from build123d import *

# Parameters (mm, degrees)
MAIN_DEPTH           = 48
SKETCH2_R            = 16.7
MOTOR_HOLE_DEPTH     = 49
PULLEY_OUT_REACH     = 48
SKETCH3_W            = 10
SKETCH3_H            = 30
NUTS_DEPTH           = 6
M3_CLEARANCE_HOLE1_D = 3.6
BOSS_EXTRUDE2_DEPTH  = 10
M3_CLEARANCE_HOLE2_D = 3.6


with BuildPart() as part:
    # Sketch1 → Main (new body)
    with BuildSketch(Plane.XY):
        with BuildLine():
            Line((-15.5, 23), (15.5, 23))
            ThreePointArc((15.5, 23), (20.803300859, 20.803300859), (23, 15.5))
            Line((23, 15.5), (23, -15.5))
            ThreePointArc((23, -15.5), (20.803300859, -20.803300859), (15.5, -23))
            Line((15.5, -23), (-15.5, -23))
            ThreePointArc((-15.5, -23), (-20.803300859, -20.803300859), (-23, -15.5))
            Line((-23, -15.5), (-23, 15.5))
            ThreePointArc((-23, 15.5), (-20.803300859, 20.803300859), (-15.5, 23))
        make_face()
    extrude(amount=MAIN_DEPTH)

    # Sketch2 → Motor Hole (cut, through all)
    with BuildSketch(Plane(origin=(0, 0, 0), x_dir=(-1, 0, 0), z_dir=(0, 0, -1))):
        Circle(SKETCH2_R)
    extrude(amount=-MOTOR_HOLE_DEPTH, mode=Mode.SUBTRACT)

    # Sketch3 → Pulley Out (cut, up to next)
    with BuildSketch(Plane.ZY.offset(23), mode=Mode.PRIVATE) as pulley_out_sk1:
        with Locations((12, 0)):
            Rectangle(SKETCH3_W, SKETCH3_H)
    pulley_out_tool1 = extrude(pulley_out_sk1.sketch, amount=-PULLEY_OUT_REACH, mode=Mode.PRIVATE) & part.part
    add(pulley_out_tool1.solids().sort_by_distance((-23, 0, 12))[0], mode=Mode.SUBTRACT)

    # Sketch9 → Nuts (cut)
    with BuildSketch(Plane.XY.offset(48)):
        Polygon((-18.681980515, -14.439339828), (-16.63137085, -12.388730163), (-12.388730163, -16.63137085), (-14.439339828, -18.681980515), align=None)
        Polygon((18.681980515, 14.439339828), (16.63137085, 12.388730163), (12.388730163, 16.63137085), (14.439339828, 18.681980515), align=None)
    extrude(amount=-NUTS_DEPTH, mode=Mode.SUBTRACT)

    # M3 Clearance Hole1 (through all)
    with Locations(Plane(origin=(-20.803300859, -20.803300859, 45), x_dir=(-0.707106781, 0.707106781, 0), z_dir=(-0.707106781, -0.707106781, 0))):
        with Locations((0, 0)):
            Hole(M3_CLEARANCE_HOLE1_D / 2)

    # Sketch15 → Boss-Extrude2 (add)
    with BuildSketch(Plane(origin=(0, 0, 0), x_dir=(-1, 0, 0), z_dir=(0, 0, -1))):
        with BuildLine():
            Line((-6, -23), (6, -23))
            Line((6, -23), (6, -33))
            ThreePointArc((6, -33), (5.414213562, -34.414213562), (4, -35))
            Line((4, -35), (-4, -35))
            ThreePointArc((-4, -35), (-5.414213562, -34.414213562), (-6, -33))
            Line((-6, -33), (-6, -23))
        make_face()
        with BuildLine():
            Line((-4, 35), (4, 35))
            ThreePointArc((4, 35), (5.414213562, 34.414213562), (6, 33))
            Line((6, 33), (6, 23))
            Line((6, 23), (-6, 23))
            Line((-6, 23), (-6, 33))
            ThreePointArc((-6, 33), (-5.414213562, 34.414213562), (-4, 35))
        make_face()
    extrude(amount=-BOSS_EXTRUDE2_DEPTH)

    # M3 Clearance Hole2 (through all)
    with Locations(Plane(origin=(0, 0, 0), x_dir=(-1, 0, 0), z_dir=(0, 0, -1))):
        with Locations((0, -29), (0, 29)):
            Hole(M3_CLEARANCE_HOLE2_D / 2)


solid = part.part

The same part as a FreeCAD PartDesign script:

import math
import FreeCAD as App
import Part
import Sketcher
from FreeCAD import Vector
Q = App.Units.Quantity

doc = App.newDocument("Part")
params = doc.addObject("Spreadsheet::Sheet", "Params")
for row, (alias, value) in enumerate([
    ("sketch1_radius", "7.5 mm"),
    ("sketch1_width", "31 mm"),
    ("pad1_length", "48 mm"),
    ("sketch2_diameter", "33.4 mm"),
    ("sketch3_width", "30 mm"),
    ("sketch3_height", "10 mm"),
    ("sketch4_length", "6 mm"),
    ("sketch4_length2", "2.9 mm"),
    ("pocket3_length", "6 mm"),
    ("sketch5_diameter", "3.6 mm"),
    ("hole_diameter", "3.6 mm"),
    ("sketch6_radius", "2 mm"),
    ("sketch6_width", "12 mm"),
    ("sketch6_height", "10 mm"),
    ("pad2_length", "10 mm"),
    ("sketch7_diameter", "3.6 mm"),
    ("hole2_diameter", "3.6 mm"),
], start=1):
    params.set(f"A{row}", alias)
    params.set(f"B{row}", "=" + value)
    params.setAlias(f"B{row}", alias)

body = doc.addObject("PartDesign::Body", "Body")

sketch1 = body.newObject("Sketcher::SketchObject", "Sketch")
sketch1.AttachmentSupport = (doc.getObject("XY_Plane"), [""])
sketch1.MapMode = "FlatFace"
sketch1.addGeometry([
    Part.LineSegment(Vector(16, 23, 0), Vector(-16, 23, 0)),
    Part.ArcOfCircle(Part.Circle(Vector(-16, 16, 0), Vector(0, 0, 1), 8), math.radians(90), math.radians(180)),
    Part.LineSegment(Vector(-23, 16, 0), Vector(-23, -16, 0)),
    Part.ArcOfCircle(Part.Circle(Vector(-16, -16, 0), Vector(0, 0, 1), 8), math.radians(180), math.radians(270)),
    Part.LineSegment(Vector(-16, -23, 0), Vector(16, -23, 0)),
    Part.ArcOfCircle(Part.Circle(Vector(16, -16, 0), Vector(0, 0, 1), 8), math.radians(-90), math.radians(0)),
    Part.LineSegment(Vector(23, -16, 0), Vector(23, 16, 0)),
    Part.ArcOfCircle(Part.Circle(Vector(16, 16, 0), Vector(0, 0, 1), 8), math.radians(0), math.radians(90)),
], False)
sketch1.addConstraint([
    Sketcher.Constraint("Tangent", 0, 2, 1, 1),
    Sketcher.Constraint("Tangent", 1, 2, 2, 1),
    Sketcher.Constraint("Tangent", 2, 2, 3, 1),
    Sketcher.Constraint("Tangent", 3, 2, 4, 1),
    Sketcher.Constraint("Tangent", 4, 2, 5, 1),
    Sketcher.Constraint("Tangent", 5, 2, 6, 1),
    Sketcher.Constraint("Tangent", 6, 2, 7, 1),
    Sketcher.Constraint("Tangent", 7, 2, 0, 1),
    Sketcher.Constraint("Horizontal", 0),
    Sketcher.Constraint("Vertical", 2),
    Sketcher.Constraint("Horizontal", 4),
    Sketcher.Constraint("Vertical", 6),
    Sketcher.Constraint("Equal", 1, 3),
    Sketcher.Constraint("Equal", 3, 5),
    Sketcher.Constraint("Equal", 5, 7),
    Sketcher.Constraint("Symmetric", 1, 3, 5, 3, -1, 1),
    Sketcher.Constraint("Equal", 4, 2),
    Sketcher.Constraint("Radius", 1, 7.5),
    Sketcher.Constraint("DistanceX", 0, 2, 0, 1, 31.0),
])
sketch1.setExpression("Constraints[17]", "Params.sketch1_radius")
sketch1.setExpression("Constraints[18]", "Params.sketch1_width")
pad1 = body.newObject("PartDesign::Pad", "Pad")
pad1.Profile = sketch1
pad1.setExpression("Length", "Params.pad1_length")

sketch2 = body.newObject("Sketcher::SketchObject", "Sketch001")
sketch2.AttachmentSupport = (doc.getObject("XY_Plane"), [""])
sketch2.MapMode = "FlatFace"
sketch2.addGeometry(Part.Circle(Vector(0, 0, 0), Vector(0, 0, 1), 17), False)
sketch2.addConstraint([
    Sketcher.Constraint("Coincident", 0, 3, -1, 1),
    Sketcher.Constraint("Diameter", 0, 33.4),
])
sketch2.setExpression("Constraints[1]", "Params.sketch2_diameter")
pocket1 = body.newObject("PartDesign::Pocket", "Pocket")
pocket1.Profile = sketch2
pocket1.Type = "ThroughAll"
pocket1.Reversed = True

sketch3 = body.newObject("Sketcher::SketchObject", "Sketch002")
sketch3.AttachmentSupport = (doc.getObject("YZ_Plane"), [""])
sketch3.MapMode = "FlatFace"
sketch3.AttachmentOffset = App.Placement(Vector(0, 0, -23), App.Rotation())
sketch3.addGeometry([
    Part.LineSegment(Vector(15, 7, 0), Vector(-15, 7, 0)),
    Part.LineSegment(Vector(-15, 7, 0), Vector(-15, 17, 0)),
    Part.LineSegment(Vector(-15, 17, 0), Vector(15, 17, 0)),
    Part.LineSegment(Vector(15, 17, 0), Vector(15, 7, 0)),
], False)
sketch3.addConstraint([
    Sketcher.Constraint("Coincident", 0, 2, 1, 1),
    Sketcher.Constraint("Coincident", 1, 2, 2, 1),
    Sketcher.Constraint("Coincident", 2, 2, 3, 1),
    Sketcher.Constraint("Coincident", 3, 2, 0, 1),
    Sketcher.Constraint("Horizontal", 0),
    Sketcher.Constraint("Vertical", 1),
    Sketcher.Constraint("Horizontal", 2),
    Sketcher.Constraint("Vertical", 3),
    Sketcher.Constraint("DistanceX", 0, 2, 0, 1, 30.0),
    Sketcher.Constraint("DistanceY", 1, 1, 1, 2, 10.0),
    Sketcher.Constraint("DistanceX", 0, 2, -1, 1, 15.0),
    Sketcher.Constraint("DistanceY", -1, 1, 0, 2, 7.0),
])
sketch3.setExpression("Constraints[8]", "Params.sketch3_width")
sketch3.setExpression("Constraints[9]", "Params.sketch3_height")
pocket2 = body.newObject("PartDesign::Pocket", "Pocket001")
pocket2.Profile = sketch3
pocket2.Type = "UpToFirst"
pocket2.Reversed = True

sketch4 = body.newObject("Sketcher::SketchObject", "Sketch003")
sketch4.AttachmentSupport = (doc.getObject("XY_Plane"), [""])
sketch4.MapMode = "FlatFace"
sketch4.AttachmentOffset = App.Placement(Vector(0, 0, 48), App.Rotation())
sketch4.addGeometry([
    Part.LineSegment(Vector(-16.6, -12.4, 0), Vector(-18.7, -14.4, 0)),
    Part.LineSegment(Vector(-18.7, -14.4, 0), Vector(-14.4, -18.7, 0)),
    Part.LineSegment(Vector(-14.4, -18.7, 0), Vector(-12.4, -16.6, 0)),
    Part.LineSegment(Vector(-12.4, -16.6, 0), Vector(-16.6, -12.4, 0)),
    Part.LineSegment(Vector(16.6, 12.4, 0), Vector(18.7, 14.4, 0)),
    Part.LineSegment(Vector(18.7, 14.4, 0), Vector(14.4, 18.7, 0)),
    Part.LineSegment(Vector(14.4, 18.7, 0), Vector(12.4, 16.6, 0)),
    Part.LineSegment(Vector(12.4, 16.6, 0), Vector(16.6, 12.4, 0)),
], False)
sketch4.addConstraint([
    Sketcher.Constraint("Coincident", 0, 2, 1, 1),
    Sketcher.Constraint("Coincident", 1, 2, 2, 1),
    Sketcher.Constraint("Coincident", 2, 2, 3, 1),
    Sketcher.Constraint("Coincident", 3, 2, 0, 1),
    Sketcher.Constraint("Coincident", 4, 2, 5, 1),
    Sketcher.Constraint("Coincident", 5, 2, 6, 1),
    Sketcher.Constraint("Coincident", 6, 2, 7, 1),
    Sketcher.Constraint("Coincident", 7, 2, 4, 1),
    Sketcher.Constraint("Symmetric", 0, 2, 4, 2, -1, 1),
    Sketcher.Constraint("Symmetric", 1, 2, 5, 2, -1, 1),
    Sketcher.Constraint("Symmetric", 2, 2, 6, 2, -1, 1),
    Sketcher.Constraint("Symmetric", 3, 2, 7, 2, -1, 1),
    Sketcher.Constraint("Perpendicular", 0, 1),
    Sketcher.Constraint("Perpendicular", 1, 2),
    Sketcher.Constraint("Perpendicular", 2, 3),
    Sketcher.Constraint("Angle", 0, Q("-135 deg")),
    Sketcher.Constraint("Distance", 1, 6.0),
    Sketcher.Constraint("Distance", 0, 2.9),
    Sketcher.Constraint("DistanceX", 3, 2, 6, 2, 29.020101),
    Sketcher.Constraint("DistanceY", 3, 2, 6, 2, 29.020101),
])
sketch4.setExpression("Constraints[16]", "Params.sketch4_length")
sketch4.setExpression("Constraints[17]", "Params.sketch4_length2")
pocket3 = body.newObject("PartDesign::Pocket", "Pocket002")
pocket3.Profile = sketch4
pocket3.setExpression("Length", "Params.pocket3_length")

sketch5 = body.newObject("Sketcher::SketchObject", "Sketch004")
sketch5.Placement = App.Placement(Vector(-20.803301, -20.803301, 0), App.Rotation(Vector(-0.707106781, 0.707106781, 0), Vector(0, 0, -0.999999999), Vector(-0.707106781, -0.707106781, 0), "ZXY"))
sketch5.addGeometry(Part.Circle(Vector(0, -45, 0), Vector(0, 0, 1), 1.8), False)
sketch5.addConstraint([
    Sketcher.Constraint("PointOnObject", 0, 3, -2),
    Sketcher.Constraint("Diameter", 0, 3.6),
    Sketcher.Constraint("DistanceY", 0, 3, -1, 1, 45.0),
])
sketch5.setExpression("Constraints[1]", "Params.sketch5_diameter")
doc.recompute()
hole = body.newObject("PartDesign::Hole", "Hole")
hole.Profile = sketch5
hole.ThreadType = "None"
hole.setExpression("Diameter", "Params.hole_diameter")
hole.DepthType = "ThroughAll"

sketch6 = body.newObject("Sketcher::SketchObject", "Sketch005")
sketch6.AttachmentSupport = (doc.getObject("XY_Plane"), [""])
sketch6.MapMode = "FlatFace"
sketch6.addGeometry([
    Part.LineSegment(Vector(-6, -23, 0), Vector(6, -23, 0)),
    Part.LineSegment(Vector(6, -23, 0), Vector(6, -33, 0)),
    Part.ArcOfCircle(Part.Circle(Vector(4, -33, 0), Vector(0, 0, 1), 2), math.radians(-90), math.radians(0)),
    Part.LineSegment(Vector(4, -35, 0), Vector(-4, -35, 0)),
    Part.ArcOfCircle(Part.Circle(Vector(-4, -33, 0), Vector(0, 0, 1), 2), math.radians(-180), math.radians(-90)),
    Part.LineSegment(Vector(-6, -33, 0), Vector(-6, -23, 0)),
    Part.LineSegment(Vector(-4, 35, 0), Vector(4, 35, 0)),
    Part.ArcOfCircle(Part.Circle(Vector(4, 33, 0), Vector(0, 0, 1), 2), math.radians(0), math.radians(90)),
    Part.LineSegment(Vector(6, 33, 0), Vector(6, 23, 0)),
    Part.LineSegment(Vector(6, 23, 0), Vector(-6, 23, 0)),
    Part.LineSegment(Vector(-6, 23, 0), Vector(-6, 33, 0)),
    Part.ArcOfCircle(Part.Circle(Vector(-4, 33, 0), Vector(0, 0, 1), 2), math.radians(90), math.radians(180)),
], False)
sketch6.addConstraint([
    Sketcher.Constraint("Coincident", 0, 2, 1, 1),
    Sketcher.Constraint("Tangent", 1, 2, 2, 2),
    Sketcher.Constraint("Tangent", 2, 1, 3, 1),
    Sketcher.Constraint("Tangent", 3, 2, 4, 2),
    Sketcher.Constraint("Tangent", 4, 1, 5, 1),
    Sketcher.Constraint("Coincident", 5, 2, 0, 1),
    Sketcher.Constraint("Tangent", 6, 2, 7, 2),
    Sketcher.Constraint("Tangent", 7, 1, 8, 1),
    Sketcher.Constraint("Coincident", 8, 2, 9, 1),
    Sketcher.Constraint("Coincident", 9, 2, 10, 1),
    Sketcher.Constraint("Tangent", 10, 2, 11, 2),
    Sketcher.Constraint("Tangent", 11, 1, 6, 1),
    Sketcher.Constraint("Horizontal", 0),
    Sketcher.Constraint("Vertical", 1),
    Sketcher.Constraint("Horizontal", 3),
    Sketcher.Constraint("Vertical", 5),
    Sketcher.Constraint("Horizontal", 6),
    Sketcher.Constraint("Vertical", 8),
    Sketcher.Constraint("Horizontal", 9),
    Sketcher.Constraint("Vertical", 10),
    Sketcher.Constraint("Equal", 2, 4),
    Sketcher.Constraint("Equal", 4, 7),
    Sketcher.Constraint("Equal", 7, 11),
    Sketcher.Constraint("Symmetric", 4, 3, 7, 3, -1, 1),
    Sketcher.Constraint("Symmetric", 0, 2, 9, 2, -1, 1),
    Sketcher.Constraint("Vertical", 2, 3, 7, 3),
    Sketcher.Constraint("Radius", 2, 2.0),
    Sketcher.Constraint("DistanceX", 0, 1, 0, 2, 12.0),
    Sketcher.Constraint("DistanceY", 1, 2, 1, 1, 10.0),
    Sketcher.Constraint("DistanceY", 2, 3, -1, 1, 33.0),
])
sketch6.setExpression("Constraints[26]", "Params.sketch6_radius")
sketch6.setExpression("Constraints[27]", "Params.sketch6_width")
sketch6.setExpression("Constraints[28]", "Params.sketch6_height")
pad2 = body.newObject("PartDesign::Pad", "Pad001")
pad2.Profile = sketch6
pad2.setExpression("Length", "Params.pad2_length")

sketch7 = body.newObject("Sketcher::SketchObject", "Sketch006")
sketch7.AttachmentSupport = (doc.getObject("XY_Plane"), [""])
sketch7.MapMode = "FlatFace"
sketch7.addGeometry([
    Part.Circle(Vector(0, -29, 0), Vector(0, 0, 1), 1.8),
    Part.Circle(Vector(0, 29, 0), Vector(0, 0, 1), 1.8),
], False)
sketch7.addConstraint([
    Sketcher.Constraint("Equal", 0, 1),
    Sketcher.Constraint("Symmetric", 0, 3, 1, 3, -1, 1),
    Sketcher.Constraint("PointOnObject", 0, 3, -2),
    Sketcher.Constraint("Diameter", 0, 3.6),
    Sketcher.Constraint("DistanceY", 0, 3, -1, 1, 29.0),
])
sketch7.setExpression("Constraints[3]", "Params.sketch7_diameter")
doc.recompute()
hole2 = body.newObject("PartDesign::Hole", "Hole001")
hole2.Profile = sketch7
hole2.ThreadType = "None"
hole2.setExpression("Diameter", "Params.hole2_diameter")
hole2.DepthType = "ThroughAll"
hole2.Reversed = True

doc.recompute()
